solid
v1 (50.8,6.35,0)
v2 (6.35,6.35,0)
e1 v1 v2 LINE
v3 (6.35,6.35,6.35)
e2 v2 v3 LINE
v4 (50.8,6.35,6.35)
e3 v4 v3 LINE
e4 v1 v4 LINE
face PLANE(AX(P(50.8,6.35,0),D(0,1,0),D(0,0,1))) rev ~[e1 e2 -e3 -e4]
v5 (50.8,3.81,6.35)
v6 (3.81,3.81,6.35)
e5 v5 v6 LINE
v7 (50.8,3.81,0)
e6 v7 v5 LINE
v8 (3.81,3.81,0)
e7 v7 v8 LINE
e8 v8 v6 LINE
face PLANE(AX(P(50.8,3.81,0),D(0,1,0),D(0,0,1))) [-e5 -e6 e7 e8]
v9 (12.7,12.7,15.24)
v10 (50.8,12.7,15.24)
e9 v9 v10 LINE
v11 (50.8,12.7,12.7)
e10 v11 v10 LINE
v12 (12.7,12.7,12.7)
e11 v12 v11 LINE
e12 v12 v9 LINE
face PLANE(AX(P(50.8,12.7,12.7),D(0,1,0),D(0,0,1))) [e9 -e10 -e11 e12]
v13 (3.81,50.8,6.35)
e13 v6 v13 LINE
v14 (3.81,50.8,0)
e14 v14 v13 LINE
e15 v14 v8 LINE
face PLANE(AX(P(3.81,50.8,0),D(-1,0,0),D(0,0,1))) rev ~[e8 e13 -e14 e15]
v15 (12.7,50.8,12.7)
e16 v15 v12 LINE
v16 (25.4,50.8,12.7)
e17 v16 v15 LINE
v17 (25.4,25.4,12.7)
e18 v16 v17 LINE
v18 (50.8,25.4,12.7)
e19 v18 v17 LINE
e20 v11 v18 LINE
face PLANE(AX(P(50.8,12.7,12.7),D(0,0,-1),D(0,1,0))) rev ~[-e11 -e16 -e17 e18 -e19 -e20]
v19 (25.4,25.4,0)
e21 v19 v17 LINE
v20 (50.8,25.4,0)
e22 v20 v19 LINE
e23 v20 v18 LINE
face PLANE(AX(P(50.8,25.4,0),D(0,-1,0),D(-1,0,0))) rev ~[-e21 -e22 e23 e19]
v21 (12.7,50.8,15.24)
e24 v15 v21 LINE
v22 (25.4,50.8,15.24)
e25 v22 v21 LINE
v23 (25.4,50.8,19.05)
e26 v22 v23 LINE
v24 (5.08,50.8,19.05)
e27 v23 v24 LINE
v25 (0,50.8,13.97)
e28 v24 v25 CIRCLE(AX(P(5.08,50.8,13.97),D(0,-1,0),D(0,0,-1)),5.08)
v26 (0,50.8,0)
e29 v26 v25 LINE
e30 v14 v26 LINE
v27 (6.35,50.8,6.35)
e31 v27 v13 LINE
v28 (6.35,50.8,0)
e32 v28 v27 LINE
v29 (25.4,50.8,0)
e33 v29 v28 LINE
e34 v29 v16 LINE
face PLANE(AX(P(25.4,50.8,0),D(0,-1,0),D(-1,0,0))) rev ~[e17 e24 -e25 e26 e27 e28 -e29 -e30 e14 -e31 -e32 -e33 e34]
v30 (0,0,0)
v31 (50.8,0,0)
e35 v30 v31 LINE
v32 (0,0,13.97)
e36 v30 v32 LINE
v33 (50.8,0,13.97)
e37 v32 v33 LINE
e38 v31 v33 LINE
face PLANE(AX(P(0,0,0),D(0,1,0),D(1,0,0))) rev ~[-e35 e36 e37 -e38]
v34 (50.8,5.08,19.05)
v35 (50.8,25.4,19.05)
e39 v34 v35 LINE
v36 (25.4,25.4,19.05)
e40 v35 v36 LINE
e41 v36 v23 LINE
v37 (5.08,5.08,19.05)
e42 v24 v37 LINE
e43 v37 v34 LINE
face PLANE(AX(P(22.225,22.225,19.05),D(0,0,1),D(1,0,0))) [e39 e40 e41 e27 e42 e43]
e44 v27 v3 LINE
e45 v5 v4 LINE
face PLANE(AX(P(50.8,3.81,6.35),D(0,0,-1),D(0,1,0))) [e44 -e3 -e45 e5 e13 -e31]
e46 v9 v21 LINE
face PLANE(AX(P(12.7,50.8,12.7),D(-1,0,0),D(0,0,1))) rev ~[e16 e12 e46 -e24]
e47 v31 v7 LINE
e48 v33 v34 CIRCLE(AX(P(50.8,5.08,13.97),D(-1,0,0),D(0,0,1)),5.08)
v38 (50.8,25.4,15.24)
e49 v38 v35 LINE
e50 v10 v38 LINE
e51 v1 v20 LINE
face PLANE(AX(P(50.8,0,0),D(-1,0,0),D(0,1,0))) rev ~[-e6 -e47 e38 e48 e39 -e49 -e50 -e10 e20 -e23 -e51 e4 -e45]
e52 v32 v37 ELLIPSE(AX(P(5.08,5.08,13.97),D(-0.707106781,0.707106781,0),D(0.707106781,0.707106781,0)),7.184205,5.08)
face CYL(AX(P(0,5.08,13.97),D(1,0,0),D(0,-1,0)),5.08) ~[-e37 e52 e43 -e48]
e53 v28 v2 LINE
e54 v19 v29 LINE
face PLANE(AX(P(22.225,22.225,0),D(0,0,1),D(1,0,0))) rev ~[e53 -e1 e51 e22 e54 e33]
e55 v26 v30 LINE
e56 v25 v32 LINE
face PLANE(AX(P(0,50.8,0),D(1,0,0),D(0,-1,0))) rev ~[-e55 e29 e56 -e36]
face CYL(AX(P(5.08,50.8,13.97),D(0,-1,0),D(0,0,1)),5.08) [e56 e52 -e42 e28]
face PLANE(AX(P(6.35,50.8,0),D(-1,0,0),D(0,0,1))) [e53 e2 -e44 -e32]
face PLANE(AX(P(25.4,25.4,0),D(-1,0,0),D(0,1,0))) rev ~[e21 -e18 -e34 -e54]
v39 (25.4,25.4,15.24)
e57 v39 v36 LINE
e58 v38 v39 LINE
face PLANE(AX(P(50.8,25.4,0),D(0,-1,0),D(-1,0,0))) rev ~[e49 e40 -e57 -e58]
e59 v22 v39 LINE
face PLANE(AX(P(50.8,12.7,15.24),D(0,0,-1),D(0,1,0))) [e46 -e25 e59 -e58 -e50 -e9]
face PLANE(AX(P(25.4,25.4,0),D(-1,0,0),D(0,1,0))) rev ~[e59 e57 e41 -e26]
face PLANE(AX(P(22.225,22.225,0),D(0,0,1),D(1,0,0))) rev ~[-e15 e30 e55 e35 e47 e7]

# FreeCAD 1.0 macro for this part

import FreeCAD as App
import Part
import Sketcher
Q = App.Units.Quantity


def edges_at(feature, points):
    """Names of the edges that pass closest to the given points."""
    edges = feature.Shape.Edges
    near = lambda p: min(range(len(edges)), key=lambda i: edges[i].distToShape(Part.Vertex(*p))[0])
    return sorted({f"Edge{near(p) + 1}" for p in points})


def add_polygon(sketch, points):
    """Adds a closed chain of lines whose ends are joined by coincident constraints."""
    first, n = sketch.GeometryCount, len(points)
    for a, b in zip(points, points[1:] + points[:1]):
        sketch.addGeometry(Part.LineSegment(App.Vector(*a, 0), App.Vector(*b, 0)), False)
    for i in range(n):
        sketch.addConstraint(Sketcher.Constraint("Coincident", first + i, 2, first + (i + 1) % n, 1))

doc = App.newDocument("Part")
body = doc.addObject("PartDesign::Body", "Body")

# Sketch on XY plane
sketch1 = doc.addObject("Sketcher::SketchObject", "Sketch")
body.addObject(sketch1)
sketch1.AttachmentSupport = (doc.XY_Plane, [""])
sketch1.MapMode = "FlatFace"
add_polygon(sketch1, [(0, 0), (51, 0), (51, 25), (25, 25), (25, 51), (0, 51)])  # lines 0-5
sketch1.addConstraint(Sketcher.Constraint("Horizontal", 0))
sketch1.addConstraint(Sketcher.Constraint("Vertical", 1))
sketch1.addConstraint(Sketcher.Constraint("Horizontal", 2))
sketch1.addConstraint(Sketcher.Constraint("Vertical", 3))
sketch1.addConstraint(Sketcher.Constraint("Horizontal", 4))
sketch1.addConstraint(Sketcher.Constraint("Vertical", 5))
sketch1.addConstraint(Sketcher.Constraint("Coincident", 5, 2, -1, 1))
sketch1.addConstraint(Sketcher.Constraint("Equal", 2, 4))
sketch1.addConstraint(Sketcher.Constraint("Equal", 4, 1))
sketch1.addConstraint(Sketcher.Constraint("Equal", 1, 3))
sketch1.addConstraint(Sketcher.Constraint("DistanceX", 0, 1, 0, 2, Q("2 in")))
pad1 = doc.addObject("PartDesign::Pad", "Pad")
body.addObject(pad1)
pad1.Profile = sketch1
pad1.Length = Q("0.75 in")

# Sketch on YZ plane
sketch2 = doc.addObject("Sketcher::SketchObject", "Sketch001")
body.addObject(sketch2)
sketch2.AttachmentSupport = (doc.YZ_Plane, [""])
sketch2.MapMode = "FlatFace"
sketch2.AttachmentOffset = App.Placement(App.Vector(0, 0, 2 * 25.4), App.Rotation())
add_polygon(sketch2, [(3.8, 6.3), (3.8, 0), (6.3, 0), (6.3, 6.3)])  # lines 0-3
sketch2.addConstraint(Sketcher.Constraint("Vertical", 0))
sketch2.addConstraint(Sketcher.Constraint("Horizontal", 1))
sketch2.addConstraint(Sketcher.Constraint("Vertical", 2))
sketch2.addConstraint(Sketcher.Constraint("Horizontal", 3))
sketch2.addConstraint(Sketcher.Constraint("PointOnObject", 0, 2, -1))
sketch2.addConstraint(Sketcher.Constraint("DistanceX", 1, 1, 1, 2, Q("0.1 in")))
sketch2.addConstraint(Sketcher.Constraint("DistanceY", 0, 2, 0, 1, Q("0.25 in")))
sketch2.addConstraint(Sketcher.Constraint("DistanceX", -1, 1, 0, 2, Q("0.15 in")))
pocket1 = doc.addObject("PartDesign::Pocket", "Pocket")
body.addObject(pocket1)
pocket1.Profile = sketch2
pocket1.Length = Q("1.85 in")

# Sketch on YZ plane
sketch3 = doc.addObject("Sketcher::SketchObject", "Sketch002")
body.addObject(sketch3)
sketch3.AttachmentSupport = (doc.YZ_Plane, [""])
sketch3.MapMode = "FlatFace"
sketch3.AttachmentOffset = App.Placement(App.Vector(0, 0, 2 * 25.4), App.Rotation())
add_polygon(sketch3, [(12.7, 15.2), (12.7, 12.7), (25.4, 12.7), (25.4, 15.2)])  # lines 0-3
sketch3.addConstraint(Sketcher.Constraint("Vertical", 0))
sketch3.addConstraint(Sketcher.Constraint("Horizontal", 1))
sketch3.addConstraint(Sketcher.Constraint("Vertical", 2))
sketch3.addConstraint(Sketcher.Constraint("Horizontal", 3))
sketch3.addConstraint(Sketcher.Constraint("DistanceX", 1, 1, 1, 2, Q("0.5 in")))
sketch3.addConstraint(Sketcher.Constraint("DistanceY", 0, 2, 0, 1, Q("0.1 in")))
sketch3.addConstraint(Sketcher.Constraint("DistanceX", -1, 1, 1, 2, Q("1 in")))
sketch3.addConstraint(Sketcher.Constraint("DistanceY", -1, 1, 0, 2, Q("0.5 in")))
pocket2 = doc.addObject("PartDesign::Pocket", "Pocket001")
body.addObject(pocket2)
pocket2.Profile = sketch3
pocket2.Length = Q("1.5 in")

# Sketch on XZ plane
sketch4 = doc.addObject("Sketcher::SketchObject", "Sketch003")
body.addObject(sketch4)
sketch4.AttachmentSupport = (doc.XZ_Plane, [""])
sketch4.MapMode = "FlatFace"
sketch4.AttachmentOffset = App.Placement(App.Vector(0, 0, -2 * 25.4), App.Rotation())
add_polygon(sketch4, [(25.4, 15.2), (25.4, 12.7), (12.7, 12.7), (12.7, 15.2)])  # lines 0-3
sketch4.addConstraint(Sketcher.Constraint("Vertical", 0))
sketch4.addConstraint(Sketcher.Constraint("Horizontal", 1))
sketch4.addConstraint(Sketcher.Constraint("Vertical", 2))
sketch4.addConstraint(Sketcher.Constraint("Horizontal", 3))
sketch4.addConstraint(Sketcher.Constraint("DistanceX", 1, 2, 1, 1, Q("0.5 in")))
sketch4.addConstraint(Sketcher.Constraint("DistanceY", 0, 2, 0, 1, Q("0.1 in")))
sketch4.addConstraint(Sketcher.Constraint("DistanceX", -1, 1, 0, 2, Q("1 in")))
sketch4.addConstraint(Sketcher.Constraint("DistanceY", -1, 1, 0, 2, Q("0.5 in")))
pocket3 = doc.addObject("PartDesign::Pocket", "Pocket002")
body.addObject(pocket3)
pocket3.Profile = sketch4
pocket3.Length = Q("1.5 in")
pocket3.Reversed = True

# Sketch on XZ plane
sketch5 = doc.addObject("Sketcher::SketchObject", "Sketch004")
body.addObject(sketch5)
sketch5.AttachmentSupport = (doc.XZ_Plane, [""])
sketch5.MapMode = "FlatFace"
sketch5.AttachmentOffset = App.Placement(App.Vector(0, 0, -2 * 25.4), App.Rotation())
add_polygon(sketch5, [(6.3, 6.3), (6.3, 0), (3.8, 0), (3.8, 6.3)])  # lines 0-3
sketch5.addConstraint(Sketcher.Constraint("Vertical", 0))
sketch5.addConstraint(Sketcher.Constraint("Horizontal", 1))
sketch5.addConstraint(Sketcher.Constraint("Vertical", 2))
sketch5.addConstraint(Sketcher.Constraint("Horizontal", 3))
sketch5.addConstraint(Sketcher.Constraint("PointOnObject", 0, 2, -1))
sketch5.addConstraint(Sketcher.Constraint("DistanceX", 1, 2, 1, 1, Q("0.1 in")))
sketch5.addConstraint(Sketcher.Constraint("DistanceY", 0, 2, 0, 1, Q("0.25 in")))
sketch5.addConstraint(Sketcher.Constraint("DistanceX", -1, 1, 0, 2, Q("0.25 in")))
pocket4 = doc.addObject("PartDesign::Pocket", "Pocket003")
body.addObject(pocket4)
pocket4.Profile = sketch5
pocket4.Length = Q("1.84 in")
pocket4.Reversed = True
doc.recompute()

fillet = doc.addObject("PartDesign::Fillet", "Fillet")
body.addObject(fillet)
fillet.Base = (pocket4, edges_at(pocket4, [(25.4, 0, 19.05), (0, 25.4, 19.05)]))
fillet.Radius = Q("0.2 in")

doc.recompute()
